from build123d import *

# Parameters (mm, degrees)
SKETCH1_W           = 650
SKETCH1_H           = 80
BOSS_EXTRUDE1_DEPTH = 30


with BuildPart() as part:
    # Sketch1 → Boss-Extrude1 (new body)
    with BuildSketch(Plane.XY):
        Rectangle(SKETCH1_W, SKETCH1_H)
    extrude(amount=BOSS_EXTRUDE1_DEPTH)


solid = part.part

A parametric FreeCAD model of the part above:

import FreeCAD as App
import Part
import Sketcher
from FreeCAD import Vector

doc = App.newDocument("Part")
body = doc.addObject("PartDesign::Body", "Body")

# Sketch on XY plane
sketch1 = doc.addObject("Sketcher::SketchObject", "Sketch")
body.addObject(sketch1)
sketch1.AttachmentSupport = (doc.XY_Plane, [""])
sketch1.MapMode = "FlatFace"
sketch1.addGeometry(Part.LineSegment(Vector(-325, 40, 0), Vector(-325, -40, 0)), False)
sketch1.addGeometry(Part.LineSegment(Vector(-325, -40, 0), Vector(325, -40, 0)), False)
sketch1.addGeometry(Part.LineSegment(Vector(325, -40, 0), Vector(325, 40, 0)), False)
sketch1.addGeometry(Part.LineSegment(Vector(325, 40, 0), Vector(-325, 40, 0)), False)
sketch1.addConstraint(Sketcher.Constraint("Coincident", 0, 2, 1, 1))
sketch1.addConstraint(Sketcher.Constraint("Coincident", 1, 2, 2, 1))
sketch1.addConstraint(Sketcher.Constraint("Coincident", 2, 2, 3, 1))
sketch1.addConstraint(Sketcher.Constraint("Coincident", 3, 2, 0, 1))
sketch1.addConstraint(Sketcher.Constraint("Vertical", 0))
sketch1.addConstraint(Sketcher.Constraint("Horizontal", 1))
sketch1.addConstraint(Sketcher.Constraint("Vertical", 2))
sketch1.addConstraint(Sketcher.Constraint("Horizontal", 3))
sketch1.addConstraint(Sketcher.Constraint("Symmetric", 0, 2, 2, 2, -1, 1))
sketch1.addConstraint(Sketcher.Constraint("DistanceX", 1, 1, 1, 2, 650.0))
sketch1.addConstraint(Sketcher.Constraint("DistanceY", 0, 2, 0, 1, 80.0))
pad1 = doc.addObject("PartDesign::Pad", "Pad")
body.addObject(pad1)
pad1.Profile = sketch1
pad1.Length = 30

doc.recompute()
